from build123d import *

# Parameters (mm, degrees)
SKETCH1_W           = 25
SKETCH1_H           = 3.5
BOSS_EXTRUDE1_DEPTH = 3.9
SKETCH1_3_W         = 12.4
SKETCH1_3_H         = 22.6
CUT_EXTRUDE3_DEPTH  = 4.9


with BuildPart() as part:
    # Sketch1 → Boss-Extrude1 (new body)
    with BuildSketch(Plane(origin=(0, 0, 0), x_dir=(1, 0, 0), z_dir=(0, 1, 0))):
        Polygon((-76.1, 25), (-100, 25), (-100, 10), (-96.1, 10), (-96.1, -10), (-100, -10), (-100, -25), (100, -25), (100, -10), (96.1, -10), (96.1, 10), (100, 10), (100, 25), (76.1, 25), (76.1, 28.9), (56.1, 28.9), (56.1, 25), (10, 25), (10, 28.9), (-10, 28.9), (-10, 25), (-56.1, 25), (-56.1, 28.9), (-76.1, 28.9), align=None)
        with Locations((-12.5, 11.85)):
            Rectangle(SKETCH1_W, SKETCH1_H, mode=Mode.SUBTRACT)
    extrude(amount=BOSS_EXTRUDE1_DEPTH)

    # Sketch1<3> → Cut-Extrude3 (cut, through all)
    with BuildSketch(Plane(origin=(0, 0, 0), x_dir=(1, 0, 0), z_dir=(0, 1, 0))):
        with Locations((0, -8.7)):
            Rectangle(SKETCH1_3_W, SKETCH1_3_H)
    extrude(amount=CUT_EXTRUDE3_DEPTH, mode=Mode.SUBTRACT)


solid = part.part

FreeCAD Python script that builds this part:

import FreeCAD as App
import Part
import Sketcher

V = App.Vector


def add_polygon(sketch, points):
    """Adds a closed chain of lines whose ends are joined by coincident constraints."""
    first, n = sketch.GeometryCount, len(points)
    for a, b in zip(points, points[1:] + points[:1]):
        sketch.addGeometry(Part.LineSegment(App.Vector(*a, 0), App.Vector(*b, 0)), False)
    for i in range(n):
        sketch.addConstraint(Sketcher.Constraint("Coincident", first + i, 2, first + (i + 1) % n, 1))

doc = App.newDocument("Part")
params = doc.addObject("Spreadsheet::Sheet", "Params")
for row, (alias, value) in enumerate([
    ("sketch1_width", "200 mm"),
    ("sketch1_width2", "20 mm"),
    ("sketch1_width3", "25 mm"),
    ("sketch1_height", "15 mm"),
    ("sketch1_width4", "23.9 mm"),
    ("pad1_length", "3.9 mm"),
    ("sketch2_width", "12.4 mm"),
    ("sketch2_height", "22.6 mm"),
], start=1):
    params.set(f"A{row}", alias)
    params.set(f"B{row}", "=" + value)
    params.setAlias(f"B{row}", alias)

body = doc.addObject("PartDesign::Body", "Body")

sketch1 = body.newObject("Sketcher::SketchObject", "Sketch")
sketch1.AttachmentSupport = (doc.getObject("XZ_Plane"), [""])
sketch1.MapMode = "FlatFace"
add_polygon(sketch1, [(-76.1, -25), (-100, -25), (-100, -10), (-96.1, -10), (-96.1, 10), (-100, 10), (-100, 25), (100, 25), (100, 10), (96.1, 10), (96.1, -10), (100, -10), (100, -25), (76.1, -25), (76.1, -28.9), (56.1, -28.9), (56.1, -25), (10, -25), (10, -28.9), (-10, -28.9), (-10, -25), (-56.1, -25), (-56.1, -28.9), (-76.1, -28.9)])
add_polygon(sketch1, [(0, -10.1), (-25, -10.1), (-25, -13.6), (0, -13.6)])
sketch1.addConstraint([
    Sketcher.Constraint("Horizontal", 0),
    Sketcher.Constraint("Vertical", 1),
    Sketcher.Constraint("Horizontal", 2),
    Sketcher.Constraint("Vertical", 3),
    Sketcher.Constraint("Horizontal", 4),
    Sketcher.Constraint("Vertical", 5),
    Sketcher.Constraint("Horizontal", 6),
    Sketcher.Constraint("Vertical", 7),
    Sketcher.Constraint("Horizontal", 8),
    Sketcher.Constraint("Vertical", 9),
    Sketcher.Constraint("Horizontal", 10),
    Sketcher.Constraint("Vertical", 11),
    Sketcher.Constraint("Horizontal", 12),
    Sketcher.Constraint("Vertical", 13),
    Sketcher.Constraint("Horizontal", 14),
    Sketcher.Constraint("Vertical", 15),
    Sketcher.Constraint("Horizontal", 16),
    Sketcher.Constraint("Vertical", 17),
    Sketcher.Constraint("Horizontal", 18),
    Sketcher.Constraint("Vertical", 19),
    Sketcher.Constraint("Horizontal", 20),
    Sketcher.Constraint("Vertical", 21),
    Sketcher.Constraint("Horizontal", 22),
    Sketcher.Constraint("Vertical", 23),
    Sketcher.Constraint("Horizontal", 24),
    Sketcher.Constraint("Vertical", 25),
    Sketcher.Constraint("Horizontal", 26),
    Sketcher.Constraint("Vertical", 27),
    Sketcher.Constraint("Symmetric", 0, 2, 6, 2, -1, 1),
    Sketcher.Constraint("Symmetric", 2, 2, 8, 2, -1, 1),
    Sketcher.Constraint("Symmetric", 4, 2, 10, 2, -1, 1),
    Sketcher.Constraint("Symmetric", 4, 2, 7, 2, -2),
    Sketcher.Constraint("Symmetric", 16, 2, 19, 2, -2),
    Sketcher.Constraint("Symmetric", 14, 2, 21, 2, -2),
    Sketcher.Constraint("Symmetric", 12, 2, 23, 2, -2),
    Sketcher.Constraint("PointOnObject", 26, 2, -2),
    Sketcher.Constraint("Horizontal", 12, 2, 15, 2),
    Sketcher.Constraint("Horizontal", 14, 2, 17, 2),
    Sketcher.Constraint("Equal", 14, 18),
    Sketcher.Constraint("Equal", 22, 3),
    Sketcher.Constraint("Equal", 10, 13),
    Sketcher.Constraint("DistanceX", 6, 1, 6, 2, 200.0),
    Sketcher.Constraint("DistanceX", 14, 2, 14, 1, 20.0),
    Sketcher.Constraint("DistanceX", 24, 2, 24, 1, 25.0),
    Sketcher.Constraint("DistanceY", 1, 1, 1, 2, 15.0),
    Sketcher.Constraint("DistanceX", 0, 2, 0, 1, 23.9),
    Sketcher.Constraint("DistanceX", 2, 1, 2, 2, 3.9),
    Sketcher.Constraint("DistanceY", 25, 2, 25, 1, 3.5),
    Sketcher.Constraint("DistanceY", 24, 2, -1, 1, 10.1),
])
sketch1.setExpression("Constraints[69]", "Params.sketch1_width")
sketch1.setExpression("Constraints[70]", "Params.sketch1_width2")
sketch1.setExpression("Constraints[71]", "Params.sketch1_width3")
sketch1.setExpression("Constraints[72]", "Params.sketch1_height")
sketch1.setExpression("Constraints[73]", "Params.sketch1_width4")
pad1 = body.newObject("PartDesign::Pad", "Pad")
pad1.Profile = sketch1
pad1.setExpression("Length", "Params.pad1_length")
pad1.Reversed = True

sketch2 = body.newObject("Sketcher::SketchObject", "Sketch001")
sketch2.AttachmentSupport = (doc.getObject("XZ_Plane"), [""])
sketch2.MapMode = "FlatFace"
add_polygon(sketch2, [(-6, -3), (-6, 20), (6, 20), (6, -3)])
sketch2.addConstraint([
    Sketcher.Constraint("Vertical", 0),
    Sketcher.Constraint("Horizontal", 1),
    Sketcher.Constraint("Vertical", 2),
    Sketcher.Constraint("Horizontal", 3),
    Sketcher.Constraint("DistanceX", 1, 1, 1, 2, 12.4),
    Sketcher.Constraint("DistanceY", 0, 1, 0, 2, 22.6),
    Sketcher.Constraint("DistanceY", -1, 1, 0, 2, 20.0),
    Sketcher.Constraint("DistanceX", 0, 2, -1, 1, 6.2),
])
sketch2.setExpression("Constraints[8]", "Params.sketch2_width")
sketch2.setExpression("Constraints[9]", "Params.sketch2_height")
pocket1 = body.newObject("PartDesign::Pocket", "Pocket")
pocket1.Profile = sketch2
pocket1.Type = "ThroughAll"

doc.recompute()
